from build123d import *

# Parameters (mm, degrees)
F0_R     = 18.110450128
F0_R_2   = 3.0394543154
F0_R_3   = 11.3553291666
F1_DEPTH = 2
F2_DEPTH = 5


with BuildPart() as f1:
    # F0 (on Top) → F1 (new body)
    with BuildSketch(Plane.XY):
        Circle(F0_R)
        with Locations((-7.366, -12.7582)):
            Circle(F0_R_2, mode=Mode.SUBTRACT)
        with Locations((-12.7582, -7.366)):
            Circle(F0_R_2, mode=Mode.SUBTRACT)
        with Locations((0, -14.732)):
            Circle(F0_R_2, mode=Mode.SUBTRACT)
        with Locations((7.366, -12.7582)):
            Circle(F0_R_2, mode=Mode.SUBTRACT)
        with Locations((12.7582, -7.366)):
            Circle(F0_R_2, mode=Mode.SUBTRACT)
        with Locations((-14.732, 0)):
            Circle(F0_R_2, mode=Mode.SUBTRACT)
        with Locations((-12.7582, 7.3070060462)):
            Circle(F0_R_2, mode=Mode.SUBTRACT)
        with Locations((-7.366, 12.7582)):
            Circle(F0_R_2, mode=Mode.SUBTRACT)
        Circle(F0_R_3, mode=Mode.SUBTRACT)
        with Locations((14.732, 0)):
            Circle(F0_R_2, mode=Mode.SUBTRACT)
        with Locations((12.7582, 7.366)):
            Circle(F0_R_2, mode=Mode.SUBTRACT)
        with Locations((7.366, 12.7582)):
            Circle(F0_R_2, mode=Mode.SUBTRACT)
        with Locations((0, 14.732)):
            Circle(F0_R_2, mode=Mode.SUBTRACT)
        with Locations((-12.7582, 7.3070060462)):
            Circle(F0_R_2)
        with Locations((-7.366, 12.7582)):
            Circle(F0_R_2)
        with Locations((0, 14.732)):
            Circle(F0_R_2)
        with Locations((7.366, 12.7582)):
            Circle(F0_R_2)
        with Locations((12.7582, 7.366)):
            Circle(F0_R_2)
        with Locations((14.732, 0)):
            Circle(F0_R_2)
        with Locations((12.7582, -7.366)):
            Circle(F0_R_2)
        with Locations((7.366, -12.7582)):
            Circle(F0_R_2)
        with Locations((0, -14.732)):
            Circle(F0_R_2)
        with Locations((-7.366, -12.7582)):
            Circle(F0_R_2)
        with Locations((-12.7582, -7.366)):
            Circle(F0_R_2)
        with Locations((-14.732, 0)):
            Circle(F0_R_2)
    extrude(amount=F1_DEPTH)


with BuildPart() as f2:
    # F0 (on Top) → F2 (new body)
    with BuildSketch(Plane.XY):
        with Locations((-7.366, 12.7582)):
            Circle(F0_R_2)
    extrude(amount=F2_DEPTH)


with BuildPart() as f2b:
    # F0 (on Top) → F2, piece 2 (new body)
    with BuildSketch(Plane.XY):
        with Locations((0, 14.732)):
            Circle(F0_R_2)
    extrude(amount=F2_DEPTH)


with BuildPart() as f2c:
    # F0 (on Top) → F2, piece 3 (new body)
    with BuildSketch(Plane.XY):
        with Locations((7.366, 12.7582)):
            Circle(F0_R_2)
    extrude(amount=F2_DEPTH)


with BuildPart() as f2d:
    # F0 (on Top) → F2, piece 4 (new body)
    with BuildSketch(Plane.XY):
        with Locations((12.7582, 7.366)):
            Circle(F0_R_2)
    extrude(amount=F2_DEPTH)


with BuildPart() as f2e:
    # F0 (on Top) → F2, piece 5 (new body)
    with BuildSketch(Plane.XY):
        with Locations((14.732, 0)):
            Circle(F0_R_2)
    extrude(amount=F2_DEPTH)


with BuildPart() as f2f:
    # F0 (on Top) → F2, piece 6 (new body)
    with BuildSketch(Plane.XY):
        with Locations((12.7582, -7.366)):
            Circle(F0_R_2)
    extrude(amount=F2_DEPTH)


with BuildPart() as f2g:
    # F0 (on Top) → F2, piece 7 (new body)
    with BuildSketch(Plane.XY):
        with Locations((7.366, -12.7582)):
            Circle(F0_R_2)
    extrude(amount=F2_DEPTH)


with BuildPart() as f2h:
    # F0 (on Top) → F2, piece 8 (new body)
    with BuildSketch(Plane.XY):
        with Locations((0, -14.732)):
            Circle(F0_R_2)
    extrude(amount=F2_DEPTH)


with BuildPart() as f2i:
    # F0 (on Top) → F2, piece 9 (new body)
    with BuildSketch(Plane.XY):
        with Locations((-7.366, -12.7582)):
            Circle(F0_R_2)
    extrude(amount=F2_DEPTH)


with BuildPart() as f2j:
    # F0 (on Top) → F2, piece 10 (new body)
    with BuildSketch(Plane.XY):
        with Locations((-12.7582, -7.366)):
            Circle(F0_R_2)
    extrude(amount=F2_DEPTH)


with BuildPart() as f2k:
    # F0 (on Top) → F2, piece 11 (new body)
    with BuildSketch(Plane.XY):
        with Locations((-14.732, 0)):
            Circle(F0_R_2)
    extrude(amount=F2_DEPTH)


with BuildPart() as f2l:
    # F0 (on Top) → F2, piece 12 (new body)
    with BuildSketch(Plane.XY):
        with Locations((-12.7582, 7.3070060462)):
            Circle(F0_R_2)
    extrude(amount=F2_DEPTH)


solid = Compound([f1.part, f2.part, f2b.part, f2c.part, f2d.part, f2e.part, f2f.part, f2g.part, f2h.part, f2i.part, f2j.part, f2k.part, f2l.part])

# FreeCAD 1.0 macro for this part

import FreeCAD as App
import Part
import Sketcher
from FreeCAD import Vector

doc = App.newDocument("Part")
params = doc.addObject("Spreadsheet::Sheet", "Params")
for row, (alias, value) in enumerate([
    ("pad1_length", "2 mm"),
    ("pad2_length", "5 mm"),
    ("pad3_length", "5 mm"),
    ("pad4_length", "5 mm"),
    ("pad5_length", "5 mm"),
    ("pad6_length", "5 mm"),
    ("pad7_length", "5 mm"),
    ("pad8_length", "5 mm"),
    ("pad9_length", "5 mm"),
    ("pad10_length", "5 mm"),
    ("pad11_length", "5 mm"),
    ("pad12_length", "5 mm"),
    ("pad13_length", "5 mm"),
], start=1):
    params.set(f"A{row}", alias)
    params.set(f"B{row}", "=" + value)
    params.setAlias(f"B{row}", alias)

body = doc.addObject("PartDesign::Body", "Body")

# Sketch on XY plane
sketch1 = body.newObject("Sketcher::SketchObject", "Sketch")
sketch1.AttachmentSupport = (doc.getObject("XY_Plane"), [""])
sketch1.MapMode = "FlatFace"
sketch1.addGeometry([
    Part.Circle(Vector(0, 0, 0), Vector(0, 0, 1), 18.11045),
    Part.Circle(Vector(0, 0, 0), Vector(0, 0, 1), 11.355329),
], False)
sketch1.addConstraint([
    Sketcher.Constraint("Coincident", 0, 3, -1, 1),
    Sketcher.Constraint("Coincident", 1, 3, -1, 1),
    Sketcher.Constraint("Diameter", 0, 36.2209),
    Sketcher.Constraint("Diameter", 1, 22.710658),
])
pad1 = body.newObject("PartDesign::Pad", "Pad")
pad1.Profile = sketch1
pad1.setExpression("Length", "Params.pad1_length")
body2 = doc.addObject("PartDesign::Body", "Body001")

# Sketch on XY plane
sketch2 = body2.newObject("Sketcher::SketchObject", "Sketch001")
sketch2.AttachmentSupport = (doc.getObject("XY_Plane001"), [""])
sketch2.MapMode = "FlatFace"
sketch2.addGeometry(Part.Circle(Vector(-7.366, 12.7582, 0), Vector(0, 0, 1), 3.039454), False)
sketch2.addConstraint([
    Sketcher.Constraint("Diameter", 0, 6.078909),
    Sketcher.Constraint("DistanceX", 0, 3, -1, 1, 7.366),
    Sketcher.Constraint("DistanceY", -1, 1, 0, 3, 12.7582),
])
pad2 = body2.newObject("PartDesign::Pad", "Pad001")
pad2.Profile = sketch2
pad2.setExpression("Length", "Params.pad2_length")
body3 = doc.addObject("PartDesign::Body", "Body002")

# Sketch on XY plane
sketch3 = body3.newObject("Sketcher::SketchObject", "Sketch002")
sketch3.AttachmentSupport = (doc.getObject("XY_Plane002"), [""])
sketch3.MapMode = "FlatFace"
sketch3.addGeometry(Part.Circle(Vector(0, 14.732, 0), Vector(0, 0, 1), 3.039454), False)
sketch3.addConstraint([
    Sketcher.Constraint("PointOnObject", 0, 3, -2),
    Sketcher.Constraint("Diameter", 0, 6.078909),
    Sketcher.Constraint("DistanceY", -1, 1, 0, 3, 14.732),
])
pad3 = body3.newObject("PartDesign::Pad", "Pad002")
pad3.Profile = sketch3
pad3.setExpression("Length", "Params.pad3_length")
body4 = doc.addObject("PartDesign::Body", "Body003")

# Sketch on XY plane
sketch4 = body4.newObject("Sketcher::SketchObject", "Sketch003")
sketch4.AttachmentSupport = (doc.getObject("XY_Plane003"), [""])
sketch4.MapMode = "FlatFace"
sketch4.addGeometry(Part.Circle(Vector(7.366, 12.7582, 0), Vector(0, 0, 1), 3.039454), False)
sketch4.addConstraint([
    Sketcher.Constraint("Diameter", 0, 6.078909),
    Sketcher.Constraint("DistanceX", -1, 1, 0, 3, 7.366),
    Sketcher.Constraint("DistanceY", -1, 1, 0, 3, 12.7582),
])
pad4 = body4.newObject("PartDesign::Pad", "Pad003")
pad4.Profile = sketch4
pad4.setExpression("Length", "Params.pad4_length")
body5 = doc.addObject("PartDesign::Body", "Body004")

# Sketch on XY plane
sketch5 = body5.newObject("Sketcher::SketchObject", "Sketch004")
sketch5.AttachmentSupport = (doc.getObject("XY_Plane004"), [""])
sketch5.MapMode = "FlatFace"
sketch5.addGeometry(Part.Circle(Vector(12.7582, 7.366, 0), Vector(0, 0, 1), 3.039454), False)
sketch5.addConstraint([
    Sketcher.Constraint("Diameter", 0, 6.078909),
    Sketcher.Constraint("DistanceY", -1, 1, 0, 3, 7.366),
    Sketcher.Constraint("DistanceX", -1, 1, 0, 3, 12.7582),
])
pad5 = body5.newObject("PartDesign::Pad", "Pad004")
pad5.Profile = sketch5
pad5.setExpression("Length", "Params.pad5_length")
body6 = doc.addObject("PartDesign::Body", "Body005")

# Sketch on XY plane
sketch6 = body6.newObject("Sketcher::SketchObject", "Sketch005")
sketch6.AttachmentSupport = (doc.getObject("XY_Plane005"), [""])
sketch6.MapMode = "FlatFace"
sketch6.addGeometry(Part.Circle(Vector(14.732, 0, 0), Vector(0, 0, 1), 3.039454), False)
sketch6.addConstraint([
    Sketcher.Constraint("PointOnObject", 0, 3, -1),
    Sketcher.Constraint("Diameter", 0, 6.078909),
    Sketcher.Constraint("DistanceX", -1, 1, 0, 3, 14.732),
])
pad6 = body6.newObject("PartDesign::Pad", "Pad005")
pad6.Profile = sketch6
pad6.setExpression("Length", "Params.pad6_length")
body7 = doc.addObject("PartDesign::Body", "Body006")

# Sketch on XY plane
sketch7 = body7.newObject("Sketcher::SketchObject", "Sketch006")
sketch7.AttachmentSupport = (doc.getObject("XY_Plane006"), [""])
sketch7.MapMode = "FlatFace"
sketch7.addGeometry(Part.Circle(Vector(12.7582, -7.366, 0), Vector(0, 0, 1), 3.039454), False)
sketch7.addConstraint([
    Sketcher.Constraint("Diameter", 0, 6.078909),
    Sketcher.Constraint("DistanceY", 0, 3, -1, 1, 7.366),
    Sketcher.Constraint("DistanceX", -1, 1, 0, 3, 12.7582),
])
pad7 = body7.newObject("PartDesign::Pad", "Pad006")
pad7.Profile = sketch7
pad7.setExpression("Length", "Params.pad7_length")
body8 = doc.addObject("PartDesign::Body", "Body007")

# Sketch on XY plane
sketch8 = body8.newObject("Sketcher::SketchObject", "Sketch007")
sketch8.AttachmentSupport = (doc.getObject("XY_Plane007"), [""])
sketch8.MapMode = "FlatFace"
sketch8.addGeometry(Part.Circle(Vector(7.366, -12.7582, 0), Vector(0, 0, 1), 3.039454), False)
sketch8.addConstraint([
    Sketcher.Constraint("Diameter", 0, 6.078909),
    Sketcher.Constraint("DistanceX", -1, 1, 0, 3, 7.366),
    Sketcher.Constraint("DistanceY", 0, 3, -1, 1, 12.7582),
])
pad8 = body8.newObject("PartDesign::Pad", "Pad007")
pad8.Profile = sketch8
pad8.setExpression("Length", "Params.pad8_length")
body9 = doc.addObject("PartDesign::Body", "Body008")

# Sketch on XY plane
sketch9 = body9.newObject("Sketcher::SketchObject", "Sketch008")
sketch9.AttachmentSupport = (doc.getObject("XY_Plane008"), [""])
sketch9.MapMode = "FlatFace"
sketch9.addGeometry(Part.Circle(Vector(0, -14.732, 0), Vector(0, 0, 1), 3.039454), False)
sketch9.addConstraint([
    Sketcher.Constraint("PointOnObject", 0, 3, -2),
    Sketcher.Constraint("Diameter", 0, 6.078909),
    Sketcher.Constraint("DistanceY", 0, 3, -1, 1, 14.732),
])
pad9 = body9.newObject("PartDesign::Pad", "Pad008")
pad9.Profile = sketch9
pad9.setExpression("Length", "Params.pad9_length")
body10 = doc.addObject("PartDesign::Body", "Body009")

# Sketch on XY plane
sketch10 = body10.newObject("Sketcher::SketchObject", "Sketch009")
sketch10.AttachmentSupport = (doc.getObject("XY_Plane009"), [""])
sketch10.MapMode = "FlatFace"
sketch10.addGeometry(Part.Circle(Vector(-7.366, -12.7582, 0), Vector(0, 0, 1), 3.039454), False)
sketch10.addConstraint([
    Sketcher.Constraint("Diameter", 0, 6.078909),
    Sketcher.Constraint("DistanceX", 0, 3, -1, 1, 7.366),
    Sketcher.Constraint("DistanceY", 0, 3, -1, 1, 12.7582),
])
pad10 = body10.newObject("PartDesign::Pad", "Pad009")
pad10.Profile = sketch10
pad10.setExpression("Length", "Params.pad10_length")
body11 = doc.addObject("PartDesign::Body", "Body010")

# Sketch on XY plane
sketch11 = body11.newObject("Sketcher::SketchObject", "Sketch010")
sketch11.AttachmentSupport = (doc.getObject("XY_Plane010"), [""])
sketch11.MapMode = "FlatFace"
sketch11.addGeometry(Part.Circle(Vector(-12.7582, -7.366, 0), Vector(0, 0, 1), 3.039454), False)
sketch11.addConstraint([
    Sketcher.Constraint("Diameter", 0, 6.078909),
    Sketcher.Constraint("DistanceY", 0, 3, -1, 1, 7.366),
    Sketcher.Constraint("DistanceX", 0, 3, -1, 1, 12.7582),
])
pad11 = body11.newObject("PartDesign::Pad", "Pad010")
pad11.Profile = sketch11
pad11.setExpression("Length", "Params.pad11_length")
body12 = doc.addObject("PartDesign::Body", "Body011")

# Sketch on XY plane
sketch12 = body12.newObject("Sketcher::SketchObject", "Sketch011")
sketch12.AttachmentSupport = (doc.getObject("XY_Plane011"), [""])
sketch12.MapMode = "FlatFace"
sketch12.addGeometry(Part.Circle(Vector(-14.732, 0, 0), Vector(0, 0, 1), 3.039454), False)
sketch12.addConstraint([
    Sketcher.Constraint("PointOnObject", 0, 3, -1),
    Sketcher.Constraint("Diameter", 0, 6.078909),
    Sketcher.Constraint("DistanceX", 0, 3, -1, 1, 14.732),
])
pad12 = body12.newObject("PartDesign::Pad", "Pad011")
pad12.Profile = sketch12
pad12.setExpression("Length", "Params.pad12_length")
body13 = doc.addObject("PartDesign::Body", "Body012")

# Sketch on XY plane
sketch13 = body13.newObject("Sketcher::SketchObject", "Sketch012")
sketch13.AttachmentSupport = (doc.getObject("XY_Plane012"), [""])
sketch13.MapMode = "FlatFace"
sketch13.addGeometry(Part.Circle(Vector(-12.7582, 7.307006, 0), Vector(0, 0, 1), 3.039454), False)
sketch13.addConstraint([
    Sketcher.Constraint("Diameter", 0, 6.078909),
    Sketcher.Constraint("DistanceX", 0, 3, -1, 1, 12.7582),
    Sketcher.Constraint("DistanceY", -1, 1, 0, 3, 7.307006),
])
pad13 = body13.newObject("PartDesign::Pad", "Pad012")
pad13.Profile = sketch13
pad13.setExpression("Length", "Params.pad13_length")

doc.recompute()
